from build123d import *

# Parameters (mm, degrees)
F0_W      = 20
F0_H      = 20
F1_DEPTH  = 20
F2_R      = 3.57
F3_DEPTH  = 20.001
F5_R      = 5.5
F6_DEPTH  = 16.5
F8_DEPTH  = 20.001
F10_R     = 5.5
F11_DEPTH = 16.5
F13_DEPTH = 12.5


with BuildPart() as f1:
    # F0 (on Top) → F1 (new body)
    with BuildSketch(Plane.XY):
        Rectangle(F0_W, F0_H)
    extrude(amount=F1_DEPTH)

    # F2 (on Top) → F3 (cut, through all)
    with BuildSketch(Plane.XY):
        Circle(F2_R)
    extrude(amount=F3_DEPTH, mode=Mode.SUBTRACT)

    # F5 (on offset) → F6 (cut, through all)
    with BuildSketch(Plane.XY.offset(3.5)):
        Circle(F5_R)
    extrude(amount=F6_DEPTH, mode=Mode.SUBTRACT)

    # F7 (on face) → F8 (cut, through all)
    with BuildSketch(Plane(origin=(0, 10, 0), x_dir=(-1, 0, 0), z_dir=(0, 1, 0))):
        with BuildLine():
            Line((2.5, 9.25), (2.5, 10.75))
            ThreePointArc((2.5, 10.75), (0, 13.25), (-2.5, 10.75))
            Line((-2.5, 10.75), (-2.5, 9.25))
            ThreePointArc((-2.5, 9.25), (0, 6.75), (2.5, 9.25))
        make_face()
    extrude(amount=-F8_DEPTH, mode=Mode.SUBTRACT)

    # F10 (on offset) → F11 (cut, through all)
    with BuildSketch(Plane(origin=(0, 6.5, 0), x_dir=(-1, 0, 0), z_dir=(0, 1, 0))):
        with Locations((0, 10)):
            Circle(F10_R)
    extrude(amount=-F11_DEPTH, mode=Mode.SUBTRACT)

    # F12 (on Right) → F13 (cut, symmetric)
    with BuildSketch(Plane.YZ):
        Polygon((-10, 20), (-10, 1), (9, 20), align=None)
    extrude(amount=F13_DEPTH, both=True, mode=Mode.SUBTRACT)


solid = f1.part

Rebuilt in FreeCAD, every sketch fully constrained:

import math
import FreeCAD as App
import Part
import Sketcher

V = App.Vector

doc = App.newDocument("Part")
body = doc.addObject("PartDesign::Body", "Body")

sketch1 = doc.addObject("Sketcher::SketchObject", "Sketch")
body.addObject(sketch1)
sketch1.AttachmentSupport = (doc.XY_Plane, [""])
sketch1.MapMode = "FlatFace"
sketch1.addGeometry([
    Part.LineSegment(V(-10, 10, 0), V(-10, -10, 0)),
    Part.LineSegment(V(-10, -10, 0), V(10, -10, 0)),
    Part.LineSegment(V(10, -10, 0), V(10, 10, 0)),
    Part.LineSegment(V(10, 10, 0), V(-10, 10, 0)),
], False)
sketch1.addConstraint([
    Sketcher.Constraint("Coincident", 0, 2, 1, 1),
    Sketcher.Constraint("Coincident", 1, 2, 2, 1),
    Sketcher.Constraint("Coincident", 2, 2, 3, 1),
    Sketcher.Constraint("Coincident", 3, 2, 0, 1),
    Sketcher.Constraint("Vertical", 0),
    Sketcher.Constraint("Horizontal", 1),
    Sketcher.Constraint("Vertical", 2),
    Sketcher.Constraint("Horizontal", 3),
    Sketcher.Constraint("Symmetric", 0, 2, 2, 2, -1, 1),
    Sketcher.Constraint("Equal", 3, 0),
    Sketcher.Constraint("DistanceX", 1, 1, 1, 2, 20.0),
])
pad1 = doc.addObject("PartDesign::Pad", "Pad")
body.addObject(pad1)
pad1.Profile = sketch1
pad1.Length = 20

sketch2 = doc.addObject("Sketcher::SketchObject", "Sketch001")
body.addObject(sketch2)
sketch2.AttachmentSupport = (doc.XY_Plane, [""])
sketch2.MapMode = "FlatFace"
sketch2.addGeometry(Part.Circle(V(0, 0, 0), V(0, 0, 1), 3.57), False)
sketch2.addConstraint([
    Sketcher.Constraint("Coincident", 0, 3, -1, 1),
    Sketcher.Constraint("Diameter", 0, 7.14),
])
pocket1 = doc.addObject("PartDesign::Pocket", "Pocket")
body.addObject(pocket1)
pocket1.Profile = sketch2
pocket1.Type = "ThroughAll"
pocket1.Reversed = True

sketch3 = doc.addObject("Sketcher::SketchObject", "Sketch002")
body.addObject(sketch3)
sketch3.AttachmentSupport = (doc.XY_Plane, [""])
sketch3.MapMode = "FlatFace"
sketch3.AttachmentOffset = App.Placement(V(0, 0, 3.5), App.Rotation())
sketch3.addGeometry(Part.Circle(V(0, 0, 0), V(0, 0, 1), 5.5), False)
sketch3.addConstraint([
    Sketcher.Constraint("Coincident", 0, 3, -1, 1),
    Sketcher.Constraint("Diameter", 0, 11.0),
])
pocket2 = doc.addObject("PartDesign::Pocket", "Pocket001")
body.addObject(pocket2)
pocket2.Profile = sketch3
pocket2.Type = "ThroughAll"
pocket2.Reversed = True

sketch4 = doc.addObject("Sketcher::SketchObject", "Sketch003")
body.addObject(sketch4)
sketch4.AttachmentSupport = (doc.XZ_Plane, [""])
sketch4.MapMode = "FlatFace"
sketch4.AttachmentOffset = App.Placement(V(0, 0, -10), App.Rotation())
sketch4.addGeometry([
    Part.LineSegment(V(-2.5, 9.25, 0), V(-2.5, 10.75, 0)),
    Part.ArcOfCircle(Part.Circle(V(0, 10.75, 0), V(0, 0, 1), 2.5), math.radians(0), math.radians(180)),
    Part.LineSegment(V(2.5, 10.75, 0), V(2.5, 9.25, 0)),
    Part.ArcOfCircle(Part.Circle(V(0, 9.25, 0), V(0, 0, 1), 2.5), math.radians(180), math.radians(360)),
], False)
sketch4.addConstraint([
    Sketcher.Constraint("Tangent", 0, 2, 1, 2),
    Sketcher.Constraint("Tangent", 1, 1, 2, 1),
    Sketcher.Constraint("Tangent", 2, 2, 3, 2),
    Sketcher.Constraint("Tangent", 3, 1, 0, 1),
    Sketcher.Constraint("Vertical", 0),
    Sketcher.Constraint("Vertical", 2),
    Sketcher.Constraint("PointOnObject", 1, 3, -2),
    Sketcher.Constraint("Radius", 1, 2.5),
    Sketcher.Constraint("DistanceY", 0, 1, 0, 2, 1.5),
    Sketcher.Constraint("DistanceY", -1, 1, 1, 3, 10.75),
])
pocket3 = doc.addObject("PartDesign::Pocket", "Pocket002")
body.addObject(pocket3)
pocket3.Profile = sketch4
pocket3.Type = "ThroughAll"
pocket3.Reversed = True

sketch5 = doc.addObject("Sketcher::SketchObject", "Sketch004")
body.addObject(sketch5)
sketch5.AttachmentSupport = (doc.XZ_Plane, [""])
sketch5.MapMode = "FlatFace"
sketch5.AttachmentOffset = App.Placement(V(0, 0, -6.5), App.Rotation())
sketch5.addGeometry(Part.Circle(V(0, 10, 0), V(0, 0, 1), 5.5), False)
sketch5.addConstraint([
    Sketcher.Constraint("PointOnObject", 0, 3, -2),
    Sketcher.Constraint("Diameter", 0, 11.0),
    Sketcher.Constraint("DistanceY", -1, 1, 0, 3, 10.0),
])
pocket4 = doc.addObject("PartDesign::Pocket", "Pocket003")
body.addObject(pocket4)
pocket4.Profile = sketch5
pocket4.Type = "ThroughAll"
pocket4.Reversed = True

sketch6 = doc.addObject("Sketcher::SketchObject", "Sketch005")
body.addObject(sketch6)
sketch6.AttachmentSupport = (doc.YZ_Plane, [""])
sketch6.MapMode = "FlatFace"
sketch6.addGeometry([
    Part.LineSegment(V(-10, 20, 0), V(-10, 1, 0)),
    Part.LineSegment(V(-10, 1, 0), V(9, 20, 0)),
    Part.LineSegment(V(9, 20, 0), V(-10, 20, 0)),
], False)
sketch6.addConstraint([
    Sketcher.Constraint("Coincident", 0, 2, 1, 1),
    Sketcher.Constraint("Coincident", 1, 2, 2, 1),
    Sketcher.Constraint("Coincident", 2, 2, 0, 1),
    Sketcher.Constraint("Vertical", 0),
    Sketcher.Constraint("Horizontal", 2),
    Sketcher.Constraint("Equal", 2, 0),
    Sketcher.Constraint("DistanceX", 2, 2, 2, 1, 19.0),
    Sketcher.Constraint("DistanceX", 0, 2, -1, 1, 10.0),
    Sketcher.Constraint("DistanceY", -1, 1, 0, 2, 1.0),
])
pocket5 = doc.addObject("PartDesign::Pocket", "Pocket004")
body.addObject(pocket5)
pocket5.Profile = sketch6
pocket5.Length = 25
pocket5.Midplane = True

doc.recompute()
